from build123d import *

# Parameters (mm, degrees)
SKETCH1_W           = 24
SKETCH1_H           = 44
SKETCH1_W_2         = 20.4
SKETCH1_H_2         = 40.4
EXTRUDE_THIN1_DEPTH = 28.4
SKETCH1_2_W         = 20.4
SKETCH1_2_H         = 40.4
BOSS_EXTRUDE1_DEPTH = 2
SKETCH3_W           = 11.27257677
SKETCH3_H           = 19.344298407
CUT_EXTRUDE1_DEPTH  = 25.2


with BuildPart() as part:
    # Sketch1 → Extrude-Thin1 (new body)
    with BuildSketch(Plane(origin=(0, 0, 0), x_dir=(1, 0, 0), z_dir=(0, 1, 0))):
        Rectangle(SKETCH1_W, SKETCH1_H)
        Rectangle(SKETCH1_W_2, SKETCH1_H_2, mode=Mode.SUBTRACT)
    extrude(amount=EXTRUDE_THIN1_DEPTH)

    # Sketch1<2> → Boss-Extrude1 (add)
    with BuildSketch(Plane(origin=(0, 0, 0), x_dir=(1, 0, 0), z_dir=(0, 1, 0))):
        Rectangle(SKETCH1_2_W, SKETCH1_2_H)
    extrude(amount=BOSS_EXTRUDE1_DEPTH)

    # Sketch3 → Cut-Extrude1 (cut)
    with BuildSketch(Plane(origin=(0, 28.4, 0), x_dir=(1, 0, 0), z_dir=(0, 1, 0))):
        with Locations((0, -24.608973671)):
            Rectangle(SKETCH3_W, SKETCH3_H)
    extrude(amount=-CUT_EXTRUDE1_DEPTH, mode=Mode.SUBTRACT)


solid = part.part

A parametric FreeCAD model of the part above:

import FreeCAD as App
import Part
import Sketcher
from FreeCAD import Vector


def add_polygon(sketch, points):
    """Adds a closed chain of lines whose ends are joined by coincident constraints."""
    first, n = sketch.GeometryCount, len(points)
    for a, b in zip(points, points[1:] + points[:1]):
        sketch.addGeometry(Part.LineSegment(App.Vector(*a, 0), App.Vector(*b, 0)), False)
    for i in range(n):
        sketch.addConstraint(Sketcher.Constraint("Coincident", first + i, 2, first + (i + 1) % n, 1))

doc = App.newDocument("Part")
body = doc.addObject("PartDesign::Body", "Body")

# Sketch on XZ plane
sketch1 = body.newObject("Sketcher::SketchObject", "Sketch")
sketch1.AttachmentSupport = (doc.getObject("XZ_Plane"), [""])
sketch1.MapMode = "FlatFace"
add_polygon(sketch1, [(-12, -22), (-12, 22), (12, 22), (12, -22)])  # lines 0-3
add_polygon(sketch1, [(10, 20), (-10, 20), (-10, -20), (10, -20)])  # lines 4-7
sketch1.addConstraint([
    Sketcher.Constraint("Vertical", 0),
    Sketcher.Constraint("Horizontal", 1),
    Sketcher.Constraint("Vertical", 2),
    Sketcher.Constraint("Horizontal", 3),
    Sketcher.Constraint("Horizontal", 4),
    Sketcher.Constraint("Vertical", 5),
    Sketcher.Constraint("Horizontal", 6),
    Sketcher.Constraint("Vertical", 7),
    Sketcher.Constraint("Symmetric", 0, 2, 2, 2, -1, 1),
    Sketcher.Constraint("Symmetric", 4, 2, 6, 2, -1, 1),
    Sketcher.Constraint("DistanceX", 1, 1, 1, 2, 24.0),
    Sketcher.Constraint("DistanceY", 0, 1, 0, 2, 44.0),
    Sketcher.Constraint("DistanceX", 4, 2, 4, 1, 20.4),
    Sketcher.Constraint("DistanceY", 5, 2, 5, 1, 40.4),
])
pad1 = body.newObject("PartDesign::Pad", "Pad")
pad1.Profile = sketch1
pad1.Length = 28.4
pad1.Reversed = True

# Sketch on XZ plane
sketch2 = body.newObject("Sketcher::SketchObject", "Sketch001")
sketch2.AttachmentSupport = (doc.getObject("XZ_Plane"), [""])
sketch2.MapMode = "FlatFace"
add_polygon(sketch2, [(-10, -20), (-10, 20), (10, 20), (10, -20)])  # lines 0-3
sketch2.addConstraint([
    Sketcher.Constraint("Vertical", 0),
    Sketcher.Constraint("Horizontal", 1),
    Sketcher.Constraint("Vertical", 2),
    Sketcher.Constraint("Horizontal", 3),
    Sketcher.Constraint("Symmetric", 0, 2, 2, 2, -1, 1),
    Sketcher.Constraint("DistanceX", 1, 1, 1, 2, 20.4),
    Sketcher.Constraint("DistanceY", 0, 1, 0, 2, 40.4),
])
pad2 = body.newObject("PartDesign::Pad", "Pad001")
pad2.Profile = sketch2
pad2.Length = 2
pad2.Reversed = True

# Sketch on XZ plane
sketch3 = body.newObject("Sketcher::SketchObject", "Sketch002")
sketch3.AttachmentSupport = (doc.getObject("XZ_Plane"), [""])
sketch3.MapMode = "FlatFace"
sketch3.AttachmentOffset = App.Placement(Vector(0, 0, -28.4), App.Rotation())
add_polygon(sketch3, [(-6, 15), (-6, 34), (6, 34), (6, 15)])  # lines 0-3
sketch3.addConstraint([
    Sketcher.Constraint("Vertical", 0),
    Sketcher.Constraint("Horizontal", 1),
    Sketcher.Constraint("Vertical", 2),
    Sketcher.Constraint("Horizontal", 3),
    Sketcher.Constraint("DistanceY", 0, 1, 0, 2, 19.344298),
    Sketcher.Constraint("DistanceX", 1, 1, 1, 2, 11.272577),
    Sketcher.Constraint("DistanceX", 0, 2, -1, 1, 5.636288),
    Sketcher.Constraint("DistanceY", -1, 1, 0, 2, 34.281123),
])
pocket1 = body.newObject("PartDesign::Pocket", "Pocket")
pocket1.Profile = sketch3
pocket1.Length = 25.2
pocket1.Reversed = True

doc.recompute()
